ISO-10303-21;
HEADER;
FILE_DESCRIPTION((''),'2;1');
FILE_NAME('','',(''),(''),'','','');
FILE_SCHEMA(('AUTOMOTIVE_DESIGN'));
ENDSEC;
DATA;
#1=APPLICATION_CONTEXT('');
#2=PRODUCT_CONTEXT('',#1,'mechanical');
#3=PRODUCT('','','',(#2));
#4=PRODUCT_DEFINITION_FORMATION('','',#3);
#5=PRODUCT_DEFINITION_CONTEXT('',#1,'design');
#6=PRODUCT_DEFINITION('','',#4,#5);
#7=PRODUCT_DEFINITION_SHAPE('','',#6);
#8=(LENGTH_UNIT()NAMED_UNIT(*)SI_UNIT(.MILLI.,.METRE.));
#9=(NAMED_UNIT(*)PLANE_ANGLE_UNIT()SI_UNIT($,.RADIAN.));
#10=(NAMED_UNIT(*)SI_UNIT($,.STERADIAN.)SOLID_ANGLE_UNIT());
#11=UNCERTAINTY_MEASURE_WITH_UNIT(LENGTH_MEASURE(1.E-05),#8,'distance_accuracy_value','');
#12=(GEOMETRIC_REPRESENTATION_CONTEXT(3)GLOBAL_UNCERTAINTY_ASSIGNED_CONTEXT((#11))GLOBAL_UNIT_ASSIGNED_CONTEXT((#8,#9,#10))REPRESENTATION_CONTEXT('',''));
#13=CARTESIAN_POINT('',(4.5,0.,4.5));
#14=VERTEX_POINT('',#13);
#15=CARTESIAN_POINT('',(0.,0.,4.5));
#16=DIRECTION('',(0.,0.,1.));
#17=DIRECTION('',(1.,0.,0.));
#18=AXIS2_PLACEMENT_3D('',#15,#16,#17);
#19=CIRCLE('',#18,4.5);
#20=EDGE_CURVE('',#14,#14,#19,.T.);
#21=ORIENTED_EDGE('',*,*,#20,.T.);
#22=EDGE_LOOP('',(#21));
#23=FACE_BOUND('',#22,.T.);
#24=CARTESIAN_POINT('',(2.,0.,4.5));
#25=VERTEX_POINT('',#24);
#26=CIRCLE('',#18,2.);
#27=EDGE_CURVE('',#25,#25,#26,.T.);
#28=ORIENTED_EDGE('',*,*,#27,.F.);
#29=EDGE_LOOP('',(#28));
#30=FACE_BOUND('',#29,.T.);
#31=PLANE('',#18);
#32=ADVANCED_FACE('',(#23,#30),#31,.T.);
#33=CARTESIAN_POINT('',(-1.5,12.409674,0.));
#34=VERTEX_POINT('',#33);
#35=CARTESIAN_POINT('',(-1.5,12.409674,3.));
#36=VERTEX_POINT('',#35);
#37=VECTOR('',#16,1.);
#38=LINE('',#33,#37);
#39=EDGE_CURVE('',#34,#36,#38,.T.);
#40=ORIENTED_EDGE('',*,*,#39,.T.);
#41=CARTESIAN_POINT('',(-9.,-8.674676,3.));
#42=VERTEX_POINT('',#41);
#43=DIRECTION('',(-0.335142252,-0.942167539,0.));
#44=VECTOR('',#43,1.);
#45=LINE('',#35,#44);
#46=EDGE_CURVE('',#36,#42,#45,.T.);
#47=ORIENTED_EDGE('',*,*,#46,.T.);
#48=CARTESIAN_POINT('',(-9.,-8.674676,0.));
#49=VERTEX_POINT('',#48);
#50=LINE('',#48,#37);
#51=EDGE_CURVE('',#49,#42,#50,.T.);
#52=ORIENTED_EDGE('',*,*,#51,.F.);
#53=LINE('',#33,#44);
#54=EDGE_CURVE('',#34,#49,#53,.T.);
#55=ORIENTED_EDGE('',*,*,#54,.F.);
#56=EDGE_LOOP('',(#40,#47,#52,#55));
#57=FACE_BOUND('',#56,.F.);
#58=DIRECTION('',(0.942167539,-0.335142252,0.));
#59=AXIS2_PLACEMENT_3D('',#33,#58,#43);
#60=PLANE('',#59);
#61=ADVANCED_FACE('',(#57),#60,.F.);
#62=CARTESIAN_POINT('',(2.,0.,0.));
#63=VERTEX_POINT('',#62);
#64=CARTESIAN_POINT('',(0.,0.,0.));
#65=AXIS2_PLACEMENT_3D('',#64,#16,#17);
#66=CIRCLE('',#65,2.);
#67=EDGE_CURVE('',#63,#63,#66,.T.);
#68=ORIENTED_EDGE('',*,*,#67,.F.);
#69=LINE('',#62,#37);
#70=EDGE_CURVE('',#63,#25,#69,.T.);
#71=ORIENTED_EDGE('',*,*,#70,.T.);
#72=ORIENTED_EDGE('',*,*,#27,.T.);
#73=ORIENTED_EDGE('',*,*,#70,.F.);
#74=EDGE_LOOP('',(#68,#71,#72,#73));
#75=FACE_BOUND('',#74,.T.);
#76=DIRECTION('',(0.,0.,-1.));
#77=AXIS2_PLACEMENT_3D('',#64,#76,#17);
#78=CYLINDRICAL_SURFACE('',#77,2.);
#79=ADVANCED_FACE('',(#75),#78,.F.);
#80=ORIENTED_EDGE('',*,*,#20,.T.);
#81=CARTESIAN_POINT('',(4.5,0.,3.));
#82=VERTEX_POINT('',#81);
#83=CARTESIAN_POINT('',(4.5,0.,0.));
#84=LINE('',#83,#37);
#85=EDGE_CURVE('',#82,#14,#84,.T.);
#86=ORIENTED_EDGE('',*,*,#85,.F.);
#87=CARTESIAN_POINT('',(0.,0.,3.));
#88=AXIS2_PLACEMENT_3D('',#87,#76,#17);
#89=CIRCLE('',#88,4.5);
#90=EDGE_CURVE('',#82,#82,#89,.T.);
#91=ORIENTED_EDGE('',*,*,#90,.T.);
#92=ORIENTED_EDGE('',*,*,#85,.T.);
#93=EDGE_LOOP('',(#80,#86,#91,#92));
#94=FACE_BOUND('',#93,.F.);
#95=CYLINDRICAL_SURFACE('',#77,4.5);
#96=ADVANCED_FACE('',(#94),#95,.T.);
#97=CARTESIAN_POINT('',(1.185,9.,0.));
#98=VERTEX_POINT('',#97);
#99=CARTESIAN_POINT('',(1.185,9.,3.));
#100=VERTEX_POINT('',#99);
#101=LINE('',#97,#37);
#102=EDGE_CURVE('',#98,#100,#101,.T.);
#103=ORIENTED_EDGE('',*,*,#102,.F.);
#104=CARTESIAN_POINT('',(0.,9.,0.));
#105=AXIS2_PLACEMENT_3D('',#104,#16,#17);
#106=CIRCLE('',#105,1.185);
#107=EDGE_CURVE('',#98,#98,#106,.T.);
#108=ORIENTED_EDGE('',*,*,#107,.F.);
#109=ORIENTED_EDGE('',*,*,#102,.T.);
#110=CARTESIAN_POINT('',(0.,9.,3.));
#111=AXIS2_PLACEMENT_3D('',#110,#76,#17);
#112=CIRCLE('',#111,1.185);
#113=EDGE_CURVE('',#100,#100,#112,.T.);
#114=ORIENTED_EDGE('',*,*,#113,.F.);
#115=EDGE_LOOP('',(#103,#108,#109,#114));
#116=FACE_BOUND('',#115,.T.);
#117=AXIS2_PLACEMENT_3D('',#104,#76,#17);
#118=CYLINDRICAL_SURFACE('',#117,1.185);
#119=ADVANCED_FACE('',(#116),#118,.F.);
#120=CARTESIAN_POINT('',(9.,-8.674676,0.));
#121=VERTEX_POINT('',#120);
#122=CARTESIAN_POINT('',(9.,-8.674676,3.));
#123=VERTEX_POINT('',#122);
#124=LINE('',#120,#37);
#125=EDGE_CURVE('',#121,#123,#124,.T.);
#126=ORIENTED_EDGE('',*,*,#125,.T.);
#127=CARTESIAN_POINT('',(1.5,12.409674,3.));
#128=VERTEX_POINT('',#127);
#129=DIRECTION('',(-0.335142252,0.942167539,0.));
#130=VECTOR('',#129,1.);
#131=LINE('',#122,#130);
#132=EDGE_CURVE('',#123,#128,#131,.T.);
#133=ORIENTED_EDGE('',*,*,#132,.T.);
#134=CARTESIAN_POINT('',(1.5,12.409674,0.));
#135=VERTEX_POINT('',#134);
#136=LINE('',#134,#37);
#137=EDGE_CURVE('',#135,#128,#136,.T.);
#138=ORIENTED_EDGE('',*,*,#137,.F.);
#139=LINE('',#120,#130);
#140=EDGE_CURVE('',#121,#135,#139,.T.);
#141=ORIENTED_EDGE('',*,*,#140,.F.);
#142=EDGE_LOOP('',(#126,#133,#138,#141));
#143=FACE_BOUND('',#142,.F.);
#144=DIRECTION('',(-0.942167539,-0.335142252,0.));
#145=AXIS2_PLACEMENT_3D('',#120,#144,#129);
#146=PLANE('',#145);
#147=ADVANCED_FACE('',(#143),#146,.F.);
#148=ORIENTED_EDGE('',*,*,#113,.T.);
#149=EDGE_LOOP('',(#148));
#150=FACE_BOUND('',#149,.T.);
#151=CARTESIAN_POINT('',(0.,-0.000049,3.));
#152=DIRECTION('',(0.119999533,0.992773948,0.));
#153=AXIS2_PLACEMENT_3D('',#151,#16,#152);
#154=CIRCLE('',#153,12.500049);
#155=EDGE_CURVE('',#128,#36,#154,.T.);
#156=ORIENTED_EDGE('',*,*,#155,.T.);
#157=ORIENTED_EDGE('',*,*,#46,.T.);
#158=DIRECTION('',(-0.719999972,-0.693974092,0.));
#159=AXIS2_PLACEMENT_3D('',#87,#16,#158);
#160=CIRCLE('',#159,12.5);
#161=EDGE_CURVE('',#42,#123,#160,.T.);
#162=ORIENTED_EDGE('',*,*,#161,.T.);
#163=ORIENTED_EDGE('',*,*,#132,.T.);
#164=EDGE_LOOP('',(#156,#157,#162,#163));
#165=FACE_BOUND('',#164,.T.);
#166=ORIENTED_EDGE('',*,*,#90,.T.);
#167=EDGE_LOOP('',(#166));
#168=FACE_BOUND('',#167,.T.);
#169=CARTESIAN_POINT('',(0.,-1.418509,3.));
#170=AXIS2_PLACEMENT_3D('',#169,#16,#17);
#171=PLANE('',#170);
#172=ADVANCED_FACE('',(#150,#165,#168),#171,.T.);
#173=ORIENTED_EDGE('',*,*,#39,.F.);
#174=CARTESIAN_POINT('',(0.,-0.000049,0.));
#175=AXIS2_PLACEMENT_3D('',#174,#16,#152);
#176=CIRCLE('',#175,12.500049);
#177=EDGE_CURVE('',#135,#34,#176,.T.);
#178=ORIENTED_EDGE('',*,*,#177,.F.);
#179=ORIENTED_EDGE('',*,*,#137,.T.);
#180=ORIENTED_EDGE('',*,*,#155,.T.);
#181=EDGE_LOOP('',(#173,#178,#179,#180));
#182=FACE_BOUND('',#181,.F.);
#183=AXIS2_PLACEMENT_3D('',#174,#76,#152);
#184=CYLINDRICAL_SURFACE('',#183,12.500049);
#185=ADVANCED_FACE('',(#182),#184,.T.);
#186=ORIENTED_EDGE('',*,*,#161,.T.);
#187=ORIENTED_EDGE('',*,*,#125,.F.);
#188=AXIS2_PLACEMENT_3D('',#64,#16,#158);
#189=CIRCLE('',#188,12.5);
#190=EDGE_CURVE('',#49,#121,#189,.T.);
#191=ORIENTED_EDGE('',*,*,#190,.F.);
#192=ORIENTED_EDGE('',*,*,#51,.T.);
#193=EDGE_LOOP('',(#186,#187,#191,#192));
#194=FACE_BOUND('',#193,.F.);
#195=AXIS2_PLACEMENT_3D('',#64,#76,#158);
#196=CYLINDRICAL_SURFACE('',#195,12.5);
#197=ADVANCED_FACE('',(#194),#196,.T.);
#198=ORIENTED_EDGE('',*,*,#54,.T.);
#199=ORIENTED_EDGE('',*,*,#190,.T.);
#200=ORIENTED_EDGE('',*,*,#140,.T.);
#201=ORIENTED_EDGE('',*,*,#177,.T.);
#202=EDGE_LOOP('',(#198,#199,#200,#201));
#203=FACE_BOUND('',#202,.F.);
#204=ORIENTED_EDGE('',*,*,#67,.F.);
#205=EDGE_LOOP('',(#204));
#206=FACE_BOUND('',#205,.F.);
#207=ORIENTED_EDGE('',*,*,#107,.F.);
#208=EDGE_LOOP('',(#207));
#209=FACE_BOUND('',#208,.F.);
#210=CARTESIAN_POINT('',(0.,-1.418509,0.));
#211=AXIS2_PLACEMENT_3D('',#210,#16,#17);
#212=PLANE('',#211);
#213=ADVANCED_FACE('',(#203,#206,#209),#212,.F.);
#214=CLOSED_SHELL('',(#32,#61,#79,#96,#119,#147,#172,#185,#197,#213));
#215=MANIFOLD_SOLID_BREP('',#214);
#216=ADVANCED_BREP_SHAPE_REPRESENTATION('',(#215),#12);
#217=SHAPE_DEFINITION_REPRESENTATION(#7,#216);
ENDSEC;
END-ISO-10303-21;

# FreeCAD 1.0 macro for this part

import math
import FreeCAD as App
import Part
import Sketcher

V = App.Vector

doc = App.newDocument("Part")
params = doc.addObject("Spreadsheet::Sheet", "Params")
for row, (alias, value) in enumerate([
    ("sketch1_diameter", "4 mm"),
    ("sketch1_radius", "12.5 mm"),
    ("pad1_length", "3 mm"),
    ("sketch2_diameter", "2.37 mm"),
    ("pocket1_length", "25 mm"),
    ("sketch3_diameter", "9 mm"),
    ("sketch3_diameter2", "4 mm"),
    ("pad2_length", "4.5 mm"),
], start=1):
    params.set(f"A{row}", alias)
    params.set(f"B{row}", "=" + value)
    params.setAlias(f"B{row}", alias)

body = doc.addObject("PartDesign::Body", "Body")

# Sketch on XY plane
sketch1 = doc.addObject("Sketcher::SketchObject", "Sketch")
body.addObject(sketch1)
sketch1.AttachmentSupport = (doc.XY_Plane, [""])
sketch1.MapMode = "FlatFace"
sketch1.addGeometry([
    Part.LineSegment(V(-1.5, 12.4, 0), V(-9, -8.7, 0)),  # 0
    Part.ArcOfCircle(Part.Circle(V(0, 0, 0), V(0, 0, 1), 12.5), math.radians(-136), math.radians(-44)),  # 1
    Part.LineSegment(V(9, -8.7, 0), V(1.5, 12.4, 0)),  # 2
    Part.ArcOfCircle(Part.Circle(V(0, 0, 0), V(0, 0, 1), 12.5), math.radians(83.11), math.radians(96.89)),  # 3
    Part.Circle(V(0, 0, 0), V(0, 0, 1), 2),  # 4
], False)
sketch1.addConstraint([
    Sketcher.Constraint("Coincident", 0, 2, 1, 1),
    Sketcher.Constraint("Coincident", 1, 2, 2, 1),
    Sketcher.Constraint("Coincident", 2, 2, 3, 1),
    Sketcher.Constraint("Coincident", 3, 2, 0, 1),
    Sketcher.Constraint("Coincident", 1, 3, -1, 1),
    Sketcher.Constraint("Coincident", 4, 3, -1, 1),
    Sketcher.Constraint("Symmetric", 2, 2, 3, 2, -2),
    Sketcher.Constraint("Horizontal", 0, 2, 1, 2),
    Sketcher.Constraint("Diameter", 4, 4.0),
    Sketcher.Constraint("Radius", 1, 12.5),
    Sketcher.Constraint("DistanceX", 0, 2, -1, 1, 9.0),
    Sketcher.Constraint("DistanceX", 3, 2, 2, 2, 3.0),
    Sketcher.Constraint("Radius", 3, 12.500049),
    Sketcher.Constraint("DistanceY", 1, 2, 2, 2, 21.08435),
])
sketch1.setExpression("Constraints[8]", "Params.sketch1_diameter")
sketch1.setExpression("Constraints[9]", "Params.sketch1_radius")
pad1 = doc.addObject("PartDesign::Pad", "Pad")
body.addObject(pad1)
pad1.Profile = sketch1
pad1.setExpression("Length", "Params.pad1_length")

# Sketch on XY plane
sketch2 = doc.addObject("Sketcher::SketchObject", "Sketch001")
body.addObject(sketch2)
sketch2.AttachmentSupport = (doc.XY_Plane, [""])
sketch2.MapMode = "FlatFace"
sketch2.addGeometry(Part.Circle(V(0, 9, 0), V(0, 0, 1), 1.2), False)
sketch2.addConstraint([
    Sketcher.Constraint("PointOnObject", 0, 3, -2),
    Sketcher.Constraint("Diameter", 0, 2.37),
    Sketcher.Constraint("DistanceY", -1, 1, 0, 3, 9.0),
])
sketch2.setExpression("Constraints[1]", "Params.sketch2_diameter")
pocket1 = doc.addObject("PartDesign::Pocket", "Pocket")
body.addObject(pocket1)
pocket1.Profile = sketch2
pocket1.setExpression("Length", "Params.pocket1_length")
pocket1.Reversed = True

# Sketch on XY plane
sketch3 = doc.addObject("Sketcher::SketchObject", "Sketch002")
body.addObject(sketch3)
sketch3.AttachmentSupport = (doc.XY_Plane, [""])
sketch3.MapMode = "FlatFace"
sketch3.addGeometry([
    Part.Circle(V(0, 0, 0), V(0, 0, 1), 4.5),
    Part.Circle(V(0, 0, 0), V(0, 0, 1), 2),
], False)
sketch3.addConstraint([
    Sketcher.Constraint("Coincident", 0, 3, -1, 1),
    Sketcher.Constraint("Coincident", 1, 3, -1, 1),
    Sketcher.Constraint("Diameter", 0, 9.0),
    Sketcher.Constraint("Diameter", 1, 4.0),
])
sketch3.setExpression("Constraints[2]", "Params.sketch3_diameter")
sketch3.setExpression("Constraints[3]", "Params.sketch3_diameter2")
pad2 = doc.addObject("PartDesign::Pad", "Pad001")
body.addObject(pad2)
pad2.Profile = sketch3
pad2.setExpression("Length", "Params.pad2_length")

doc.recompute()
